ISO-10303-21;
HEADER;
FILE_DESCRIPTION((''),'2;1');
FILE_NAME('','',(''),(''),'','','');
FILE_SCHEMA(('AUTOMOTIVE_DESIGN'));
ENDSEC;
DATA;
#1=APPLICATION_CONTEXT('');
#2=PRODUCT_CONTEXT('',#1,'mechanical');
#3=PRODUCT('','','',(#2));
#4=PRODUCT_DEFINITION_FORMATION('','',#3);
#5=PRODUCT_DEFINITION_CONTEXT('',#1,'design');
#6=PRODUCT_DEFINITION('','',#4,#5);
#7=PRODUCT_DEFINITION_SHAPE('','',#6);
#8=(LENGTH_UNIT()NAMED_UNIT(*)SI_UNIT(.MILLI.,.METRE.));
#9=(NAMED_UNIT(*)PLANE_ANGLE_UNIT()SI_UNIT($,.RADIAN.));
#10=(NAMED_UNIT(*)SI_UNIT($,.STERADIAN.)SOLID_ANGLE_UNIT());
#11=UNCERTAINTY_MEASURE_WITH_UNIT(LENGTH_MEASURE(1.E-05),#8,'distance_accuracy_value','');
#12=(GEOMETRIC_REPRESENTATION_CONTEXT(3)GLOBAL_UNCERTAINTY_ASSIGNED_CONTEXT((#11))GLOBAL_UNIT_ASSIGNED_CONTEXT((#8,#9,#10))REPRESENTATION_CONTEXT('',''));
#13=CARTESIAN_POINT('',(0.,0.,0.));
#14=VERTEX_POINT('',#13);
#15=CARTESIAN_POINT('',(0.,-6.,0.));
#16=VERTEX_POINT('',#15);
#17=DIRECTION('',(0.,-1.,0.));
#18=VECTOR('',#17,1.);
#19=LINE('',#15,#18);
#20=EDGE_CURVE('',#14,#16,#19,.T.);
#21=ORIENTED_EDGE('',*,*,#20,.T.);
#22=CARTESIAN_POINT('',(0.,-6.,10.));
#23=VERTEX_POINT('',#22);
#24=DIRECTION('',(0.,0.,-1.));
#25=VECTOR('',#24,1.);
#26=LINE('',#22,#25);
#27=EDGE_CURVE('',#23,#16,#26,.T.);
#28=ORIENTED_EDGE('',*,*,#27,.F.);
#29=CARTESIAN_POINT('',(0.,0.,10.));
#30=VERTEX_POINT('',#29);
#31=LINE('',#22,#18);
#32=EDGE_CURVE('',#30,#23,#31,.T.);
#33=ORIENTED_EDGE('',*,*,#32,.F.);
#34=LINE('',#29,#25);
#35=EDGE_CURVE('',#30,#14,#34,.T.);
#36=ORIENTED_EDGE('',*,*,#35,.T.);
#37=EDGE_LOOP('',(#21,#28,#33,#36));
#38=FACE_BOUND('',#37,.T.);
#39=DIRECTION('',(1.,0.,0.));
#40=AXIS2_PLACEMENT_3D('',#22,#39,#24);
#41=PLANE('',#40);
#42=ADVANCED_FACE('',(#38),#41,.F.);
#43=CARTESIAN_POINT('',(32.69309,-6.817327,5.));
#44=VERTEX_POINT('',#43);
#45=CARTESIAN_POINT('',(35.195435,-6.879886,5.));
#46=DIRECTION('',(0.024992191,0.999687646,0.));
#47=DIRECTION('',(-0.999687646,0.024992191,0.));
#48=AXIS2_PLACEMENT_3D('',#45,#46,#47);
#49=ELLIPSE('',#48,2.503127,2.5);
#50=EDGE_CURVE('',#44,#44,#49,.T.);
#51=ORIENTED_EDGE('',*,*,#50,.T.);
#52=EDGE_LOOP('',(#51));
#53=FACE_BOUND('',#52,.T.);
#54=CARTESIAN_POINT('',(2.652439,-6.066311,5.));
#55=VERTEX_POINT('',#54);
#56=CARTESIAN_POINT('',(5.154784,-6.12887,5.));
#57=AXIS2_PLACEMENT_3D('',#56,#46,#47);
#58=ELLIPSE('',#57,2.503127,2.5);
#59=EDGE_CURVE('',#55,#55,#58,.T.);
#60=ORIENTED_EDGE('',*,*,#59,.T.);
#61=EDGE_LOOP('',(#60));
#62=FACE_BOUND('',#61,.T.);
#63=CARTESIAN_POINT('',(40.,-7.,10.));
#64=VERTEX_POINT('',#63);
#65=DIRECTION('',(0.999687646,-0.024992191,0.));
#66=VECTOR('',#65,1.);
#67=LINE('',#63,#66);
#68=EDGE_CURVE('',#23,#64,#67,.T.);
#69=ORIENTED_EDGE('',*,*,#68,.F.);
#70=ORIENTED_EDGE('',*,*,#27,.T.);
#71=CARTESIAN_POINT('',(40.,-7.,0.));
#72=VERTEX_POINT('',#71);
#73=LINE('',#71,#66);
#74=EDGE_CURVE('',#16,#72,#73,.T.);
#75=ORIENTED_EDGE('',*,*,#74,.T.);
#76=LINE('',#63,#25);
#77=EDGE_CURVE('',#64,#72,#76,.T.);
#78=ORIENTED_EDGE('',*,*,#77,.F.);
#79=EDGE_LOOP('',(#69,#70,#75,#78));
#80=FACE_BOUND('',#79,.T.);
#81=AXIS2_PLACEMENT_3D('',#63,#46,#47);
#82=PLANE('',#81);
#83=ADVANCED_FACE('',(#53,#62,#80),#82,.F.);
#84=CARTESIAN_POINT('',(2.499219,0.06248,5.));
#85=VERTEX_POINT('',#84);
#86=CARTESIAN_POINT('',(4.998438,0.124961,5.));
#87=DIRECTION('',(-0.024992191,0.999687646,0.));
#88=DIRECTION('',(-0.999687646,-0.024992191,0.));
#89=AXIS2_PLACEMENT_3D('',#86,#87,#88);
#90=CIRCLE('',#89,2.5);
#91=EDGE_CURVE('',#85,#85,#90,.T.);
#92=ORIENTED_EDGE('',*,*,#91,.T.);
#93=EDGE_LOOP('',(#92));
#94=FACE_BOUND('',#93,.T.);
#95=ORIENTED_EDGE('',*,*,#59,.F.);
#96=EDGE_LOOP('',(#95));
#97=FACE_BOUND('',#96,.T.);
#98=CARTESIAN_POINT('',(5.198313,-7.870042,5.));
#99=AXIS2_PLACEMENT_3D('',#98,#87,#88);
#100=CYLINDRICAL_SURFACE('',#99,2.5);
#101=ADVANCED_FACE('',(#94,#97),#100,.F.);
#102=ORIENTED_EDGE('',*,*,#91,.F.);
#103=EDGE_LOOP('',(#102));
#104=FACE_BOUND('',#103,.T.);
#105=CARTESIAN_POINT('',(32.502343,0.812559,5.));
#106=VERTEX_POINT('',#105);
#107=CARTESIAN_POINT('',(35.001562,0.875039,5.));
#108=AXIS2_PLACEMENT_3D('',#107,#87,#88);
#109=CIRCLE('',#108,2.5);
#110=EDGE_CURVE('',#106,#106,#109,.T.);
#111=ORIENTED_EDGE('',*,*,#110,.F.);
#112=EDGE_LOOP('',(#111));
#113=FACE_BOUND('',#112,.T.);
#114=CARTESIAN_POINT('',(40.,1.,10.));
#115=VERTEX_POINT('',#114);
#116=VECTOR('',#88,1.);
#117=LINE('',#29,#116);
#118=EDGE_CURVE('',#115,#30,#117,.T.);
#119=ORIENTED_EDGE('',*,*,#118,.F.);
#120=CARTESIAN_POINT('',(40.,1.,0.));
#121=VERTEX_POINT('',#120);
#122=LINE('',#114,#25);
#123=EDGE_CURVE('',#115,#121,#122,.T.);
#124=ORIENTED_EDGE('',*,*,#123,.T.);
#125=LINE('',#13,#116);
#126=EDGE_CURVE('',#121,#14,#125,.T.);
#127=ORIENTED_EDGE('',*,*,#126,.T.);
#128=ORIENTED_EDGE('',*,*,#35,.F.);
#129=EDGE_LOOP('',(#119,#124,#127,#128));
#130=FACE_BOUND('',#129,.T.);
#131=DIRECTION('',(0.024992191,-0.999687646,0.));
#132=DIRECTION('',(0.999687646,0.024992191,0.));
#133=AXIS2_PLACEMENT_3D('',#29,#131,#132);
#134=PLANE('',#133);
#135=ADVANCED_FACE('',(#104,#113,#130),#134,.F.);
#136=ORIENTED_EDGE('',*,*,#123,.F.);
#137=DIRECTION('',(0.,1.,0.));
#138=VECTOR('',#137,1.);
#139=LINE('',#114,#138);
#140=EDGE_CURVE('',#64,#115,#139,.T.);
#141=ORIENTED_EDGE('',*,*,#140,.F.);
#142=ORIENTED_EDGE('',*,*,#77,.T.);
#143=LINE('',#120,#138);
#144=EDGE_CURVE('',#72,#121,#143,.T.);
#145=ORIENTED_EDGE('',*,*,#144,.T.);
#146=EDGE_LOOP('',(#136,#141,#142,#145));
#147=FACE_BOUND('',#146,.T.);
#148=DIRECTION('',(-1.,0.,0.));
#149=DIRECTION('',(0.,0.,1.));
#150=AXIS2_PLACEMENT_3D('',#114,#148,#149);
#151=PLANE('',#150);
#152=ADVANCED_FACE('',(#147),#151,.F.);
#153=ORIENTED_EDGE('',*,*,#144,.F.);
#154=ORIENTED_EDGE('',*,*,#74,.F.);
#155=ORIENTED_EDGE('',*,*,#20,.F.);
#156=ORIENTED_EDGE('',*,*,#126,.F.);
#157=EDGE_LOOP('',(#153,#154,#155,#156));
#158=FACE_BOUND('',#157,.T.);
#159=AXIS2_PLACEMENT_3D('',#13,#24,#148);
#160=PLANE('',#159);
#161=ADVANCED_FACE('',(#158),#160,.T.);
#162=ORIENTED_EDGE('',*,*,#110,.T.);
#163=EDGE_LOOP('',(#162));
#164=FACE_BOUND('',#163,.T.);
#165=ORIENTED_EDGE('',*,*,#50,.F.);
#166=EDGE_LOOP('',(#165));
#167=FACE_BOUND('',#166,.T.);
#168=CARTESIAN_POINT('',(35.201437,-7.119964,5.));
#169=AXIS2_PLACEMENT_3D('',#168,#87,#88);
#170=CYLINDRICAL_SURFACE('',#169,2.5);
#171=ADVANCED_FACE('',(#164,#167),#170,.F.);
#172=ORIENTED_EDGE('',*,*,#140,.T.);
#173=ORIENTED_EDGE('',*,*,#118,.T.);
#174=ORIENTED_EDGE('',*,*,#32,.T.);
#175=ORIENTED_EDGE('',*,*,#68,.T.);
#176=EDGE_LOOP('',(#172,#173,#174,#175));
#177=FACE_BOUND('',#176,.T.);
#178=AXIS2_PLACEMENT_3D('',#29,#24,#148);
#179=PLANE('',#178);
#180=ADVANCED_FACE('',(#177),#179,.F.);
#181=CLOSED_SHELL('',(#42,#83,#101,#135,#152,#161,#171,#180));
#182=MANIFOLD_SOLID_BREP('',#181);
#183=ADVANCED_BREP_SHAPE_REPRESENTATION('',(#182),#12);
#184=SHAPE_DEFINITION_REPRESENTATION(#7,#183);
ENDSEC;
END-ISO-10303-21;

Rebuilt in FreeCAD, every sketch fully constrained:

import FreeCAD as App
import Part
import Sketcher

V = App.Vector


def add_polygon(sketch, points):
    """Adds a closed chain of lines whose ends are joined by coincident constraints."""
    first, n = sketch.GeometryCount, len(points)
    for a, b in zip(points, points[1:] + points[:1]):
        sketch.addGeometry(Part.LineSegment(App.Vector(*a, 0), App.Vector(*b, 0)), False)
    for i in range(n):
        sketch.addConstraint(Sketcher.Constraint("Coincident", first + i, 2, first + (i + 1) % n, 1))

doc = App.newDocument("Part")
body = doc.addObject("PartDesign::Body", "Body")

# Sketch on XY plane
sketch1 = doc.addObject("Sketcher::SketchObject", "Sketch")
body.addObject(sketch1)
sketch1.AttachmentSupport = (doc.XY_Plane, [""])
sketch1.MapMode = "FlatFace"
add_polygon(sketch1, [(40, 1), (0, 0), (0, -6), (40, -7)])  # lines 0-3
sketch1.addConstraint([
    Sketcher.Constraint("Vertical", 1),
    Sketcher.Constraint("Vertical", 3),
    Sketcher.Constraint("Coincident", 0, 2, -1, 1),
    Sketcher.Constraint("Equal", 0, 2),
    Sketcher.Constraint("DistanceY", 1, 2, 1, 1, 6.0),
    Sketcher.Constraint("DistanceY", 3, 1, 3, 2, 8.0),
    Sketcher.Constraint("DistanceX", -1, 1, 2, 2, 40.0),
])
pad1 = doc.addObject("PartDesign::Pad", "Pad")
body.addObject(pad1)
pad1.Profile = sketch1
pad1.Length = 10

# Sketch on an angled plane
sketch2 = doc.addObject("Sketcher::SketchObject", "Sketch001")
body.addObject(sketch2)
sketch2.Placement = App.Placement(V(0, 0, 0), App.Rotation(V(0.999687646, 0.024992191, 0), V(0, 0, -0.999999999), V(-0.024992191, 0.999687646, 0), "ZXY"))
sketch2.addGeometry([
    Part.Circle(V(5, -5, 0), V(0, 0, 1), 2.5),
    Part.Circle(V(35.012498, -5, 0), V(0, 0, 1), 2.5),
], False)
sketch2.addConstraint([
    Sketcher.Constraint("Equal", 0, 1),
    Sketcher.Constraint("Horizontal", 0, 3, 1, 3),
    Sketcher.Constraint("Diameter", 0, 5.0),
    Sketcher.Constraint("DistanceX", -1, 1, 0, 3, 5.0),
    Sketcher.Constraint("DistanceY", 0, 3, -1, 1, 5.0),
    Sketcher.Constraint("DistanceX", -1, 1, 1, 3, 35.012498),
])
pocket1 = doc.addObject("PartDesign::Pocket", "Pocket")
body.addObject(pocket1)
pocket1.Profile = sketch2
pocket1.Type = "ThroughAll"

doc.recompute()
